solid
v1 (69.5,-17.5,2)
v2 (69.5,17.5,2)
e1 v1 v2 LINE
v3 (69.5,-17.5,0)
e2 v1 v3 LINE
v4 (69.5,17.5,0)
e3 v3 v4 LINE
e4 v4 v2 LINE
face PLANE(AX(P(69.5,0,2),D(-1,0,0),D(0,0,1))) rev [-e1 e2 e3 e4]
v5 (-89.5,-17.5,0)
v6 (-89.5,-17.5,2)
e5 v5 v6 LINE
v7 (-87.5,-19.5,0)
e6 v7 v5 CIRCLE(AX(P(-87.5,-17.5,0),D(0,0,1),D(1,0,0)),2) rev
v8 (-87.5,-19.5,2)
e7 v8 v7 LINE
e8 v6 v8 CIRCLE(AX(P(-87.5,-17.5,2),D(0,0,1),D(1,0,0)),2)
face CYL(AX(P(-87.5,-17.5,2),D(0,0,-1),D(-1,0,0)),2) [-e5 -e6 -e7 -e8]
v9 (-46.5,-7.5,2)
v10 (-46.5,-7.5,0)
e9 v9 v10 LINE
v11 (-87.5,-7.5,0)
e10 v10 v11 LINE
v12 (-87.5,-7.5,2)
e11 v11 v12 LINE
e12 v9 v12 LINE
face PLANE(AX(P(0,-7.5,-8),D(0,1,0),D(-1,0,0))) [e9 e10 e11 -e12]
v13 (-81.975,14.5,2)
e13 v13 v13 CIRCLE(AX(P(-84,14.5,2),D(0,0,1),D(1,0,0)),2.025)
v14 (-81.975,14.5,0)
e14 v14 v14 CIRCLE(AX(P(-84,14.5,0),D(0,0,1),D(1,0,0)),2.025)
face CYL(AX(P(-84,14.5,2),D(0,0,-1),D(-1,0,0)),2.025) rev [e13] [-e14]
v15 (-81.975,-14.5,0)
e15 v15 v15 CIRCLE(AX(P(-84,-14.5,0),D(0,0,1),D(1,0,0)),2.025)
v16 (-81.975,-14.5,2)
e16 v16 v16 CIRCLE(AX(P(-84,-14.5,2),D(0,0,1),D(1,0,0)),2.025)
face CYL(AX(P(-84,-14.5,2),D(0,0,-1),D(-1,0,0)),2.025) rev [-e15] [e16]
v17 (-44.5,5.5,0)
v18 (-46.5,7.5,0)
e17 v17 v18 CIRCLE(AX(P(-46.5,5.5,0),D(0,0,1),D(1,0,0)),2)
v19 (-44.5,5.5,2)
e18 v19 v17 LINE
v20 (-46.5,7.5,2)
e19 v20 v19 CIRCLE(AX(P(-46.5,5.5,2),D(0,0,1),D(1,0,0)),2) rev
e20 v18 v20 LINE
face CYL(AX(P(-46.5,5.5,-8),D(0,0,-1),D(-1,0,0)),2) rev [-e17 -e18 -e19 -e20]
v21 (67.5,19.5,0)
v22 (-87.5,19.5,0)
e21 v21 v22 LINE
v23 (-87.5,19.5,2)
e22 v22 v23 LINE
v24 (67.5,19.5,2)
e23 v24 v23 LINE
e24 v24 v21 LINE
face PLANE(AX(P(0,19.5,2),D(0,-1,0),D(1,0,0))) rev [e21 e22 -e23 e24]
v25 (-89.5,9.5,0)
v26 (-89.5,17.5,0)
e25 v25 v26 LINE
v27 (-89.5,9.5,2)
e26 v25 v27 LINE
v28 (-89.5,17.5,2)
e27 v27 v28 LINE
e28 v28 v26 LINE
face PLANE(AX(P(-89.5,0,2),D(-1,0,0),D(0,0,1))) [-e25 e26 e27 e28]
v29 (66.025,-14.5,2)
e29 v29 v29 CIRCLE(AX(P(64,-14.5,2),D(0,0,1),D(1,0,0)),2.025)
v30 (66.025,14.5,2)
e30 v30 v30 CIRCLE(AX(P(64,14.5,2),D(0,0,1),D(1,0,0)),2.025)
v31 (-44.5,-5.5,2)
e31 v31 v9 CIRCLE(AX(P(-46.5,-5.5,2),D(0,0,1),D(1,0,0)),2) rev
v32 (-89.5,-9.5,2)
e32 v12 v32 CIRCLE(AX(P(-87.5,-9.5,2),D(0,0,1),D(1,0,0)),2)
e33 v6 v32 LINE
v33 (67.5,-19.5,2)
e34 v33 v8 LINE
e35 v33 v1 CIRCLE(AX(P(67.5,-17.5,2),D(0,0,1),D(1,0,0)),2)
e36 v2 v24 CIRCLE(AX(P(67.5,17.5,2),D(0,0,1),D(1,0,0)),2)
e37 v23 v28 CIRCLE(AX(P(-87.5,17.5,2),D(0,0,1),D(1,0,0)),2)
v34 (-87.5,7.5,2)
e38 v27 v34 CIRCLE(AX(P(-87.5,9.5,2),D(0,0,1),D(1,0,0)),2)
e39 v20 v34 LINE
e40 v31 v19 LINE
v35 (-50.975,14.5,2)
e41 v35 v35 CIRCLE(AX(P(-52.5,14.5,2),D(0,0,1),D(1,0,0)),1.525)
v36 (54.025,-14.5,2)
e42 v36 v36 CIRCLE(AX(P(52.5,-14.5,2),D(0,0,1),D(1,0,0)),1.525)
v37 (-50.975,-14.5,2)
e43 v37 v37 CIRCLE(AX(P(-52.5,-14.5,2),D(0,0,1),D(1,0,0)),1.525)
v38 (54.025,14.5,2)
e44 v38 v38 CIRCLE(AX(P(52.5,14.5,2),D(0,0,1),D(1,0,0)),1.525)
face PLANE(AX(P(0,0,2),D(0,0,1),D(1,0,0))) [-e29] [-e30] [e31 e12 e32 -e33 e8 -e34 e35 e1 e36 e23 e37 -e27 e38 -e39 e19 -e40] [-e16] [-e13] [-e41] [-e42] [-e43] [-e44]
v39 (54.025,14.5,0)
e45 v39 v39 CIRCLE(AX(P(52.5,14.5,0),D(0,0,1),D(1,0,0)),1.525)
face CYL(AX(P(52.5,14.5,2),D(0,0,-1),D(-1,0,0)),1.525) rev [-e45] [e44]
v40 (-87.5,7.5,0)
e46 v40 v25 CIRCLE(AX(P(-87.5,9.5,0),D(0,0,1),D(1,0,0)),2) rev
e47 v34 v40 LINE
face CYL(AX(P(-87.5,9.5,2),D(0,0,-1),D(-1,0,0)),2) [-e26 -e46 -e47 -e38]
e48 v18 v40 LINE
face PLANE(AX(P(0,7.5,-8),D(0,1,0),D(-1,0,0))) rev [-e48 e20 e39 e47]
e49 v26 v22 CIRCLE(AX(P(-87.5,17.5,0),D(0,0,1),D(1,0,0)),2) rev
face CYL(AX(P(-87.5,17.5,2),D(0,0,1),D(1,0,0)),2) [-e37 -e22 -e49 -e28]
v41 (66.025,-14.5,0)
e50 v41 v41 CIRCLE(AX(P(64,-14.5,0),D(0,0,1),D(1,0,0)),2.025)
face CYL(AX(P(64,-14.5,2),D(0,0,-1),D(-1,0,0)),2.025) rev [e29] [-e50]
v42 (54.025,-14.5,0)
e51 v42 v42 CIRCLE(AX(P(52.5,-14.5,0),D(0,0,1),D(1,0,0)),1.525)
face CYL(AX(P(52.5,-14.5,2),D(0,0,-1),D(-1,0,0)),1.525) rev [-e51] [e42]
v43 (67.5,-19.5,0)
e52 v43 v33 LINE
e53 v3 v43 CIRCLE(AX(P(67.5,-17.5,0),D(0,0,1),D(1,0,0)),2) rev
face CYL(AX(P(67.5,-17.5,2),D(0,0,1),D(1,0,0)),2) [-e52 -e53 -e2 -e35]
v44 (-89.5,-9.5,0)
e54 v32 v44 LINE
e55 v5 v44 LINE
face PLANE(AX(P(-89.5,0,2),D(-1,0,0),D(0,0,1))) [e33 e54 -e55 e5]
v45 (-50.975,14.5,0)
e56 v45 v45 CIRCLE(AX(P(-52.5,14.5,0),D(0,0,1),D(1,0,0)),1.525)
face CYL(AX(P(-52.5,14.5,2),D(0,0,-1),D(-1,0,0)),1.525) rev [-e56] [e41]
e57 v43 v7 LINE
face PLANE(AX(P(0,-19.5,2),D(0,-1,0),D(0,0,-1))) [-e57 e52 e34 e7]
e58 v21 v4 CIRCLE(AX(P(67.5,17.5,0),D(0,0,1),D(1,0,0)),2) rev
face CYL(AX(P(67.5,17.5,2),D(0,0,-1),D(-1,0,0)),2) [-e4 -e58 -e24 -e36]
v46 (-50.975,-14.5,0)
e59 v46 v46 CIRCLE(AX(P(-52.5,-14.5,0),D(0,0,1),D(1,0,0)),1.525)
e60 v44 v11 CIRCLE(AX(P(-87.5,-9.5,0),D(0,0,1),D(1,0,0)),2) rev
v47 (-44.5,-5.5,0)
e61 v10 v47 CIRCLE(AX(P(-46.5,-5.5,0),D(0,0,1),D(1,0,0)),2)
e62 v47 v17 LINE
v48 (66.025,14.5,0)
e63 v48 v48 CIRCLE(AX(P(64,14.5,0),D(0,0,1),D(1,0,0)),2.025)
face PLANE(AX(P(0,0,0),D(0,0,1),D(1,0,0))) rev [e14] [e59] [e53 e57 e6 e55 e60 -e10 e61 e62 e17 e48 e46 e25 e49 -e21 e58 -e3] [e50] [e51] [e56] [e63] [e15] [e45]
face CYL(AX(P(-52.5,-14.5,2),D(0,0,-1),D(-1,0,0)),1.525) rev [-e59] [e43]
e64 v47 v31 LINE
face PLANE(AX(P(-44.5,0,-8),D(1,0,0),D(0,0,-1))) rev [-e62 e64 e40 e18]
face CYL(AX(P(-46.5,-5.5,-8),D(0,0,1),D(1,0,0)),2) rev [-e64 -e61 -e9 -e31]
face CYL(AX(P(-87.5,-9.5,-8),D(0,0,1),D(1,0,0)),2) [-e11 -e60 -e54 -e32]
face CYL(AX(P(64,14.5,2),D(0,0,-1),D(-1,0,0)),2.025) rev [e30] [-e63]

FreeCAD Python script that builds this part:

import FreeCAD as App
import Part
import Sketcher
from FreeCAD import Vector


def edges_at(feature, points):
    """Names of the edges that pass closest to the given points."""
    edges = feature.Shape.Edges
    near = lambda p: min(range(len(edges)), key=lambda i: edges[i].distToShape(Part.Vertex(*p))[0])
    return sorted({f"Edge{near(p) + 1}" for p in points})

doc = App.newDocument("Part")
params = doc.addObject("Spreadsheet::Sheet", "Params")
for row, (alias, value) in enumerate([
    ("sketch1_diameter", "4.05 mm"),
    ("sketch1_diameter2", "3.05 mm"),
    ("sketch1_width", "159 mm"),
    ("sketch1_height", "39 mm"),
    ("pad1_length", "2 mm"),
    ("sketch2_width", "45 mm"),
    ("sketch2_height", "15 mm"),
    ("pocket1_length", "10 mm"),
    ("fillet_radius", "2 mm"),
], start=1):
    params.set(f"A{row}", alias)
    params.set(f"B{row}", "=" + value)
    params.setAlias(f"B{row}", alias)

body = doc.addObject("PartDesign::Body", "Body")

sketch1 = doc.addObject("Sketcher::SketchObject", "Sketch")
body.addObject(sketch1)
sketch1.AttachmentSupport = (doc.XY_Plane, [""])
sketch1.MapMode = "FlatFace"
sketch1.addGeometry(Part.LineSegment(Vector(-89.5, 19.5, 0), Vector(-89.5, -19.5, 0)), False)
sketch1.addGeometry(Part.LineSegment(Vector(-89.5, -19.5, 0), Vector(69.5, -19.5, 0)), False)
sketch1.addGeometry(Part.LineSegment(Vector(69.5, -19.5, 0), Vector(69.5, 19.5, 0)), False)
sketch1.addGeometry(Part.LineSegment(Vector(69.5, 19.5, 0), Vector(-89.5, 19.5, 0)), False)
sketch1.addGeometry(Part.Circle(Vector(-84, -14.5, 0), Vector(0, 0, 1), 2), False)
sketch1.addGeometry(Part.Circle(Vector(-52.5, -14.5, 0), Vector(0, 0, 1), 1.5), False)
sketch1.addGeometry(Part.Circle(Vector(52.5, -14.5, 0), Vector(0, 0, 1), 1.5), False)
sketch1.addGeometry(Part.Circle(Vector(64, -14.5, 0), Vector(0, 0, 1), 2), False)
sketch1.addGeometry(Part.Circle(Vector(-84, 14.5, 0), Vector(0, 0, 1), 2), False)
sketch1.addGeometry(Part.Circle(Vector(-52.5, 14.5, 0), Vector(0, 0, 1), 1.5), False)
sketch1.addGeometry(Part.Circle(Vector(52.5, 14.5, 0), Vector(0, 0, 1), 1.5), False)
sketch1.addGeometry(Part.Circle(Vector(64, 14.5, 0), Vector(0, 0, 1), 2), False)
sketch1.addConstraint(Sketcher.Constraint("Coincident", 0, 2, 1, 1))
sketch1.addConstraint(Sketcher.Constraint("Coincident", 1, 2, 2, 1))
sketch1.addConstraint(Sketcher.Constraint("Coincident", 2, 2, 3, 1))
sketch1.addConstraint(Sketcher.Constraint("Coincident", 3, 2, 0, 1))
sketch1.addConstraint(Sketcher.Constraint("Vertical", 0))
sketch1.addConstraint(Sketcher.Constraint("Horizontal", 1))
sketch1.addConstraint(Sketcher.Constraint("Vertical", 2))
sketch1.addConstraint(Sketcher.Constraint("Horizontal", 3))
sketch1.addConstraint(Sketcher.Constraint("Equal", 5, 6))
sketch1.addConstraint(Sketcher.Constraint("Equal", 4, 7))
sketch1.addConstraint(Sketcher.Constraint("Equal", 7, 8))
sketch1.addConstraint(Sketcher.Constraint("Equal", 6, 9))
sketch1.addConstraint(Sketcher.Constraint("Equal", 9, 10))
sketch1.addConstraint(Sketcher.Constraint("Equal", 8, 11))
sketch1.addConstraint(Sketcher.Constraint("Symmetric", 6, 3, 9, 3, -1, 1))
sketch1.addConstraint(Sketcher.Constraint("Symmetric", 5, 3, 10, 3, -1, 1))
sketch1.addConstraint(Sketcher.Constraint("Symmetric", 5, 3, 6, 3, -2))
sketch1.addConstraint(Sketcher.Constraint("Symmetric", 4, 3, 8, 3, -1))
sketch1.addConstraint(Sketcher.Constraint("Symmetric", 7, 3, 11, 3, -1))
sketch1.addConstraint(Sketcher.Constraint("Horizontal", 4, 3, 5, 3))
sketch1.addConstraint(Sketcher.Constraint("Horizontal", 6, 3, 7, 3))
sketch1.addConstraint(Sketcher.Constraint("Diameter", 4, 4.05))
sketch1.addConstraint(Sketcher.Constraint("Diameter", 5, 3.05))
sketch1.addConstraint(Sketcher.Constraint("DistanceX", 1, 1, 1, 2, 159.0))
sketch1.addConstraint(Sketcher.Constraint("DistanceY", 0, 2, 0, 1, 39.0))
sketch1.addConstraint(Sketcher.Constraint("DistanceX", 4, 3, -1, 1, 84.0))
sketch1.addConstraint(Sketcher.Constraint("DistanceX", -1, 1, 7, 3, 64.0))
sketch1.addConstraint(Sketcher.Constraint("DistanceX", 5, 3, 6, 3, 105.0))
sketch1.addConstraint(Sketcher.Constraint("DistanceY", 4, 3, 8, 3, 29.0))
sketch1.addConstraint(Sketcher.Constraint("DistanceY", 0, 2, 4, 3, 5.0))
sketch1.addConstraint(Sketcher.Constraint("DistanceX", 0, 2, 5, 3, 37.0))
sketch1.setExpression("Constraints[21]", "Params.sketch1_diameter")
sketch1.setExpression("Constraints[22]", "Params.sketch1_diameter2")
sketch1.setExpression("Constraints[23]", "Params.sketch1_width")
sketch1.setExpression("Constraints[24]", "Params.sketch1_height")
pad1 = doc.addObject("PartDesign::Pad", "Pad")
body.addObject(pad1)
pad1.Profile = sketch1
pad1.setExpression("Length", "Params.pad1_length")

sketch2 = doc.addObject("Sketcher::SketchObject", "Sketch001")
body.addObject(sketch2)
sketch2.AttachmentSupport = (doc.XY_Plane, [""])
sketch2.MapMode = "FlatFace"
sketch2.AttachmentOffset = App.Placement(Vector(0, 0, 2), App.Rotation())
sketch2.addGeometry(Part.LineSegment(Vector(-90, 8, 0), Vector(-90, -8, 0)), False)
sketch2.addGeometry(Part.LineSegment(Vector(-90, -8, 0), Vector(-44, -8, 0)), False)
sketch2.addGeometry(Part.LineSegment(Vector(-44, -8, 0), Vector(-44, 8, 0)), False)
sketch2.addGeometry(Part.LineSegment(Vector(-44, 8, 0), Vector(-90, 8, 0)), False)
sketch2.addConstraint(Sketcher.Constraint("Coincident", 0, 2, 1, 1))
sketch2.addConstraint(Sketcher.Constraint("Coincident", 1, 2, 2, 1))
sketch2.addConstraint(Sketcher.Constraint("Coincident", 2, 2, 3, 1))
sketch2.addConstraint(Sketcher.Constraint("Coincident", 3, 2, 0, 1))
sketch2.addConstraint(Sketcher.Constraint("Vertical", 0))
sketch2.addConstraint(Sketcher.Constraint("Horizontal", 1))
sketch2.addConstraint(Sketcher.Constraint("Vertical", 2))
sketch2.addConstraint(Sketcher.Constraint("Horizontal", 3))
sketch2.addConstraint(Sketcher.Constraint("DistanceX", 1, 1, 1, 2, 45.0))
sketch2.addConstraint(Sketcher.Constraint("DistanceY", 0, 2, 0, 1, 15.0))
sketch2.addConstraint(Sketcher.Constraint("DistanceX", 0, 2, -1, 1, 89.5))
sketch2.addConstraint(Sketcher.Constraint("DistanceY", 0, 2, -1, 1, 7.5))
sketch2.setExpression("Constraints[8]", "Params.sketch2_width")
sketch2.setExpression("Constraints[9]", "Params.sketch2_height")
pocket1 = doc.addObject("PartDesign::Pocket", "Pocket")
body.addObject(pocket1)
pocket1.Profile = sketch2
pocket1.setExpression("Length", "Params.pocket1_length")
doc.recompute()

fillet = doc.addObject("PartDesign::Fillet", "Fillet")
body.addObject(fillet)
fillet.Base = (pocket1, edges_at(pocket1, [
    (-89.5, 19.5, 1),
    (69.5, 19.5, 1),
    (69.5, -19.5, 1),
    (-89.5, -19.5, 1),
    (-44.5, -7.5, 1),
    (-89.5, -7.5, 1),
    (-89.5, 7.5, 1),
    (-44.5, 7.5, 1),
]))
fillet.setExpression("Radius", "Params.fillet_radius")

doc.recompute()
